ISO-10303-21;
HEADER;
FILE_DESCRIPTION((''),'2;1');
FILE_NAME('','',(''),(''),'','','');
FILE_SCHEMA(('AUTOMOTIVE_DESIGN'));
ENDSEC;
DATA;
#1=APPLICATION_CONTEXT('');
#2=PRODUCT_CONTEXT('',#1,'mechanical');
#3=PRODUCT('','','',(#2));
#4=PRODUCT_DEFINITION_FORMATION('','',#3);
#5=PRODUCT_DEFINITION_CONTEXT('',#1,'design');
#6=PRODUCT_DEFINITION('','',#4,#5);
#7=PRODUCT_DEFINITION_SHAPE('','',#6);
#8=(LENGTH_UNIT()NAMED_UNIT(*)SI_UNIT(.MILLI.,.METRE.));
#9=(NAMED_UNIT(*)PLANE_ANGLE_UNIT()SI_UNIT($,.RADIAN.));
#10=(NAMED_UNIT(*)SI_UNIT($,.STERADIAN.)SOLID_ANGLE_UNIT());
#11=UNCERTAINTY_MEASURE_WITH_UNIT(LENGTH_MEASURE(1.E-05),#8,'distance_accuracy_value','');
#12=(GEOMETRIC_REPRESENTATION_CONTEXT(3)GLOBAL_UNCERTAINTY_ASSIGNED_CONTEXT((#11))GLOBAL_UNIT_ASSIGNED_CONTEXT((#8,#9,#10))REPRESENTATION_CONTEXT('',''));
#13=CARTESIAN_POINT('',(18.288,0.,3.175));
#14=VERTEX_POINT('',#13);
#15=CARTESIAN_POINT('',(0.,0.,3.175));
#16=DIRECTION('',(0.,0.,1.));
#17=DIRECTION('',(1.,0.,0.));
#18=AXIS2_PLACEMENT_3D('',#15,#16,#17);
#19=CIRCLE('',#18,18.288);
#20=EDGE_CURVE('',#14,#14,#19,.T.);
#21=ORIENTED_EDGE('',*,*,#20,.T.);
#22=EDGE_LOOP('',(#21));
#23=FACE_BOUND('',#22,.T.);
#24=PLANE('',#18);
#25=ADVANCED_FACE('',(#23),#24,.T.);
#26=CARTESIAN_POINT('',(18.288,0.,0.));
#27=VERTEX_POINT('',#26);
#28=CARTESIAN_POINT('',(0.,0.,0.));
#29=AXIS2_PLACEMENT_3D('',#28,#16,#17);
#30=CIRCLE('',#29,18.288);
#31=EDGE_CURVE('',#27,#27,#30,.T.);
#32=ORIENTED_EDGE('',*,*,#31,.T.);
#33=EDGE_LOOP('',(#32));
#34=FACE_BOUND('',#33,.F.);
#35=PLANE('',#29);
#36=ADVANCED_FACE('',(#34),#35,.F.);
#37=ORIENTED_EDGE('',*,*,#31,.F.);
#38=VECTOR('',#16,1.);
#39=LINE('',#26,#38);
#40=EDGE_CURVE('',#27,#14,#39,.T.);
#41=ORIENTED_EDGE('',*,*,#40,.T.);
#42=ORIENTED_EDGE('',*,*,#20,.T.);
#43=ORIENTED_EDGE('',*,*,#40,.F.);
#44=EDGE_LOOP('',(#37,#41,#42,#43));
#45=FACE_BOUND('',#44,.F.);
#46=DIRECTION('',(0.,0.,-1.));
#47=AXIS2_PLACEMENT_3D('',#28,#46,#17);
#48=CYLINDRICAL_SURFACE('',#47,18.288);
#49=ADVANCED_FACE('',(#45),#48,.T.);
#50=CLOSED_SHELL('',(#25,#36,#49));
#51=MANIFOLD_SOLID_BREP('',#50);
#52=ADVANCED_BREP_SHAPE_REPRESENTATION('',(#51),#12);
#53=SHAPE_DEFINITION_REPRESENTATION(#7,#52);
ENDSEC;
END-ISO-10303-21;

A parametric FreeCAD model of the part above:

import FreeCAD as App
import Part
import Sketcher
from FreeCAD import Vector
Q = App.Units.Quantity

doc = App.newDocument("Part")
params = doc.addObject("Spreadsheet::Sheet", "Params")
for row, (alias, value) in enumerate([
    ("sketch1_diameter", "1.44 in"),
    ("pad1_length", "0.125 in"),
], start=1):
    params.set(f"A{row}", alias)
    params.set(f"B{row}", "=" + value)
    params.setAlias(f"B{row}", alias)

body = doc.addObject("PartDesign::Body", "Body")

# Sketch on XY plane
sketch1 = body.newObject("Sketcher::SketchObject", "Sketch")
sketch1.AttachmentSupport = (doc.getObject("XY_Plane"), [""])
sketch1.MapMode = "FlatFace"
sketch1.addGeometry(Part.Circle(Vector(0, 0, 0), Vector(0, 0, 1), 18), False)
sketch1.addConstraint([
    Sketcher.Constraint("Coincident", 0, 3, -1, 1),
    Sketcher.Constraint("Diameter", 0, Q("1.44 in")),
])
sketch1.setExpression("Constraints[1]", "Params.sketch1_diameter")
pad1 = body.newObject("PartDesign::Pad", "Pad")
pad1.Profile = sketch1
pad1.setExpression("Length", "Params.pad1_length")

doc.recompute()
